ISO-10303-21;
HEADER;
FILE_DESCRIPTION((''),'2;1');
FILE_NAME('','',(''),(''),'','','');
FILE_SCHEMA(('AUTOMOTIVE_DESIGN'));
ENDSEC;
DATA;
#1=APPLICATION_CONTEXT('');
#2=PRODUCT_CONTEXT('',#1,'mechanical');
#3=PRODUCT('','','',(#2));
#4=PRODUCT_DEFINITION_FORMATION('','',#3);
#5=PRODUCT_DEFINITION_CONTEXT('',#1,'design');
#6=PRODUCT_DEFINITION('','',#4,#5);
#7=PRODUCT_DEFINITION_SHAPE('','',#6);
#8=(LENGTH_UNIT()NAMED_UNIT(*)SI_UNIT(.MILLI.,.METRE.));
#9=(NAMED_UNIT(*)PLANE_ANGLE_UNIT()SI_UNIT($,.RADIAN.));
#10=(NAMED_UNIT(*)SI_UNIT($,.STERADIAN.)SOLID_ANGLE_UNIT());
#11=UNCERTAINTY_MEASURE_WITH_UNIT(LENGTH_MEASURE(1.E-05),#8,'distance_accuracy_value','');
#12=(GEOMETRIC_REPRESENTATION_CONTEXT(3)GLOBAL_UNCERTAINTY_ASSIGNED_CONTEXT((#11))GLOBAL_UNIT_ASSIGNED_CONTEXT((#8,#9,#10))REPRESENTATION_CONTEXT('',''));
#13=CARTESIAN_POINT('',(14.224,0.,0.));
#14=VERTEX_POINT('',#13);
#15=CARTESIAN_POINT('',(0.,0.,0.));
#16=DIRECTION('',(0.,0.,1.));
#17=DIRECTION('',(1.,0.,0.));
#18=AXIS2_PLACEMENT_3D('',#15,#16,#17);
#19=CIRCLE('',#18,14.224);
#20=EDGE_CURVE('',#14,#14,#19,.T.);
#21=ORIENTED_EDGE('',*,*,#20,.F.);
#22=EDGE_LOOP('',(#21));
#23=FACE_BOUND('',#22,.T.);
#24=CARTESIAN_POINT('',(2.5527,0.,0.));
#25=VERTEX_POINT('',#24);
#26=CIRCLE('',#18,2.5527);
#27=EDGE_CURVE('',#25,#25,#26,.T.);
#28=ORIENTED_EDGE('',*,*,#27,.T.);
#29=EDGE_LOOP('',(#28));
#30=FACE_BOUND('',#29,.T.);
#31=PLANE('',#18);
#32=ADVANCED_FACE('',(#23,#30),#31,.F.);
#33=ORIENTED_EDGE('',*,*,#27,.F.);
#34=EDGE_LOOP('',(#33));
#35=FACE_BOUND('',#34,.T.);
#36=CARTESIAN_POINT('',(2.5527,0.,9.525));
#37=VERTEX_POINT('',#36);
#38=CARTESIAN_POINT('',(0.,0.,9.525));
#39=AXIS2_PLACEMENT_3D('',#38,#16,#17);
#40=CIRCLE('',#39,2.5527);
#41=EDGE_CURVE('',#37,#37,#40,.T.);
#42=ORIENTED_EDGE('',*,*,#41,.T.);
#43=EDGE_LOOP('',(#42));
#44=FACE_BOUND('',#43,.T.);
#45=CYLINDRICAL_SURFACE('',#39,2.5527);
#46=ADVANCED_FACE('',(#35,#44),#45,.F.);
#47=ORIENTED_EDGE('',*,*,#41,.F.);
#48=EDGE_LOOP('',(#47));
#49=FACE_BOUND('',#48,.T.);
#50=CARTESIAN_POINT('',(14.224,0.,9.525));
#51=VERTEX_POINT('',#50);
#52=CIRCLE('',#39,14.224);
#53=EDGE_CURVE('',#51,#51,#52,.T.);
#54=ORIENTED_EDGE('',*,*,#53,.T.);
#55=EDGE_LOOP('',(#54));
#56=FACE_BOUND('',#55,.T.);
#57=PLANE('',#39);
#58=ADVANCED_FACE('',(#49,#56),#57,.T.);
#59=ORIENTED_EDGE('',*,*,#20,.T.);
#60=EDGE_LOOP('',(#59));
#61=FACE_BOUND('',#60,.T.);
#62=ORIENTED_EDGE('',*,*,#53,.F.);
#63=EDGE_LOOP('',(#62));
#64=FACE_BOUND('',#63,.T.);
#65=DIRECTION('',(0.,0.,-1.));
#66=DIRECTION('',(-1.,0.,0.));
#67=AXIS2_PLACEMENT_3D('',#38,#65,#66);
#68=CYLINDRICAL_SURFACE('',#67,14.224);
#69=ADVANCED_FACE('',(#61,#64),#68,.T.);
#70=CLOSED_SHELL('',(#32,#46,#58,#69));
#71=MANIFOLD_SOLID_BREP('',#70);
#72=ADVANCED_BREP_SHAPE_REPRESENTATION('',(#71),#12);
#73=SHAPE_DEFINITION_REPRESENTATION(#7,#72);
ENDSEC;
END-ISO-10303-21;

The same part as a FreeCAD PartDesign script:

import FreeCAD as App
import Part
import Sketcher
from FreeCAD import Vector
Q = App.Units.Quantity

doc = App.newDocument("Part")
params = doc.addObject("Spreadsheet::Sheet", "Params")
for row, (alias, value) in enumerate([
    ("sketch1_diameter", "1.12 in"),
    ("pad1_length", "0.375 in"),
    ("sketch2_diameter", "0.201 in"),
    ("hole_diameter", "0.201 in"),
], start=1):
    params.set(f"A{row}", alias)
    params.set(f"B{row}", "=" + value)
    params.setAlias(f"B{row}", alias)

body = doc.addObject("PartDesign::Body", "Body")

# Sketch on XY plane
sketch1 = doc.addObject("Sketcher::SketchObject", "Sketch")
body.addObject(sketch1)
sketch1.AttachmentSupport = (doc.XY_Plane, [""])
sketch1.MapMode = "FlatFace"
sketch1.addGeometry(Part.Circle(Vector(0, 0, 0), Vector(0, 0, 1), 14.224), False)
sketch1.addConstraint([
    Sketcher.Constraint("Coincident", 0, 3, -1, 1),
    Sketcher.Constraint("Diameter", 0, Q("1.12 in")),
])
sketch1.setExpression("Constraints[1]", "Params.sketch1_diameter")
pad1 = doc.addObject("PartDesign::Pad", "Pad")
body.addObject(pad1)
pad1.Profile = sketch1
pad1.setExpression("Length", "Params.pad1_length")

# Sketch on XY plane
sketch2 = doc.addObject("Sketcher::SketchObject", "Sketch001")
body.addObject(sketch2)
sketch2.AttachmentSupport = (doc.XY_Plane, [""])
sketch2.MapMode = "FlatFace"
sketch2.AttachmentOffset = App.Placement(Vector(0, 0, 0.375 * 25.4), App.Rotation())
sketch2.addGeometry(Part.Circle(Vector(0, 0, 0), Vector(0, 0, 1), 2.5527), False)
sketch2.addConstraint([
    Sketcher.Constraint("Coincident", 0, 3, -1, 1),
    Sketcher.Constraint("Diameter", 0, Q("0.201 in")),
])
sketch2.setExpression("Constraints[1]", "Params.sketch2_diameter")
doc.recompute()
hole = doc.addObject("PartDesign::Hole", "Hole")
body.addObject(hole)
hole.Profile = sketch2
hole.ThreadType = "None"
hole.setExpression("Diameter", "Params.hole_diameter")
hole.DepthType = "ThroughAll"

doc.recompute()
